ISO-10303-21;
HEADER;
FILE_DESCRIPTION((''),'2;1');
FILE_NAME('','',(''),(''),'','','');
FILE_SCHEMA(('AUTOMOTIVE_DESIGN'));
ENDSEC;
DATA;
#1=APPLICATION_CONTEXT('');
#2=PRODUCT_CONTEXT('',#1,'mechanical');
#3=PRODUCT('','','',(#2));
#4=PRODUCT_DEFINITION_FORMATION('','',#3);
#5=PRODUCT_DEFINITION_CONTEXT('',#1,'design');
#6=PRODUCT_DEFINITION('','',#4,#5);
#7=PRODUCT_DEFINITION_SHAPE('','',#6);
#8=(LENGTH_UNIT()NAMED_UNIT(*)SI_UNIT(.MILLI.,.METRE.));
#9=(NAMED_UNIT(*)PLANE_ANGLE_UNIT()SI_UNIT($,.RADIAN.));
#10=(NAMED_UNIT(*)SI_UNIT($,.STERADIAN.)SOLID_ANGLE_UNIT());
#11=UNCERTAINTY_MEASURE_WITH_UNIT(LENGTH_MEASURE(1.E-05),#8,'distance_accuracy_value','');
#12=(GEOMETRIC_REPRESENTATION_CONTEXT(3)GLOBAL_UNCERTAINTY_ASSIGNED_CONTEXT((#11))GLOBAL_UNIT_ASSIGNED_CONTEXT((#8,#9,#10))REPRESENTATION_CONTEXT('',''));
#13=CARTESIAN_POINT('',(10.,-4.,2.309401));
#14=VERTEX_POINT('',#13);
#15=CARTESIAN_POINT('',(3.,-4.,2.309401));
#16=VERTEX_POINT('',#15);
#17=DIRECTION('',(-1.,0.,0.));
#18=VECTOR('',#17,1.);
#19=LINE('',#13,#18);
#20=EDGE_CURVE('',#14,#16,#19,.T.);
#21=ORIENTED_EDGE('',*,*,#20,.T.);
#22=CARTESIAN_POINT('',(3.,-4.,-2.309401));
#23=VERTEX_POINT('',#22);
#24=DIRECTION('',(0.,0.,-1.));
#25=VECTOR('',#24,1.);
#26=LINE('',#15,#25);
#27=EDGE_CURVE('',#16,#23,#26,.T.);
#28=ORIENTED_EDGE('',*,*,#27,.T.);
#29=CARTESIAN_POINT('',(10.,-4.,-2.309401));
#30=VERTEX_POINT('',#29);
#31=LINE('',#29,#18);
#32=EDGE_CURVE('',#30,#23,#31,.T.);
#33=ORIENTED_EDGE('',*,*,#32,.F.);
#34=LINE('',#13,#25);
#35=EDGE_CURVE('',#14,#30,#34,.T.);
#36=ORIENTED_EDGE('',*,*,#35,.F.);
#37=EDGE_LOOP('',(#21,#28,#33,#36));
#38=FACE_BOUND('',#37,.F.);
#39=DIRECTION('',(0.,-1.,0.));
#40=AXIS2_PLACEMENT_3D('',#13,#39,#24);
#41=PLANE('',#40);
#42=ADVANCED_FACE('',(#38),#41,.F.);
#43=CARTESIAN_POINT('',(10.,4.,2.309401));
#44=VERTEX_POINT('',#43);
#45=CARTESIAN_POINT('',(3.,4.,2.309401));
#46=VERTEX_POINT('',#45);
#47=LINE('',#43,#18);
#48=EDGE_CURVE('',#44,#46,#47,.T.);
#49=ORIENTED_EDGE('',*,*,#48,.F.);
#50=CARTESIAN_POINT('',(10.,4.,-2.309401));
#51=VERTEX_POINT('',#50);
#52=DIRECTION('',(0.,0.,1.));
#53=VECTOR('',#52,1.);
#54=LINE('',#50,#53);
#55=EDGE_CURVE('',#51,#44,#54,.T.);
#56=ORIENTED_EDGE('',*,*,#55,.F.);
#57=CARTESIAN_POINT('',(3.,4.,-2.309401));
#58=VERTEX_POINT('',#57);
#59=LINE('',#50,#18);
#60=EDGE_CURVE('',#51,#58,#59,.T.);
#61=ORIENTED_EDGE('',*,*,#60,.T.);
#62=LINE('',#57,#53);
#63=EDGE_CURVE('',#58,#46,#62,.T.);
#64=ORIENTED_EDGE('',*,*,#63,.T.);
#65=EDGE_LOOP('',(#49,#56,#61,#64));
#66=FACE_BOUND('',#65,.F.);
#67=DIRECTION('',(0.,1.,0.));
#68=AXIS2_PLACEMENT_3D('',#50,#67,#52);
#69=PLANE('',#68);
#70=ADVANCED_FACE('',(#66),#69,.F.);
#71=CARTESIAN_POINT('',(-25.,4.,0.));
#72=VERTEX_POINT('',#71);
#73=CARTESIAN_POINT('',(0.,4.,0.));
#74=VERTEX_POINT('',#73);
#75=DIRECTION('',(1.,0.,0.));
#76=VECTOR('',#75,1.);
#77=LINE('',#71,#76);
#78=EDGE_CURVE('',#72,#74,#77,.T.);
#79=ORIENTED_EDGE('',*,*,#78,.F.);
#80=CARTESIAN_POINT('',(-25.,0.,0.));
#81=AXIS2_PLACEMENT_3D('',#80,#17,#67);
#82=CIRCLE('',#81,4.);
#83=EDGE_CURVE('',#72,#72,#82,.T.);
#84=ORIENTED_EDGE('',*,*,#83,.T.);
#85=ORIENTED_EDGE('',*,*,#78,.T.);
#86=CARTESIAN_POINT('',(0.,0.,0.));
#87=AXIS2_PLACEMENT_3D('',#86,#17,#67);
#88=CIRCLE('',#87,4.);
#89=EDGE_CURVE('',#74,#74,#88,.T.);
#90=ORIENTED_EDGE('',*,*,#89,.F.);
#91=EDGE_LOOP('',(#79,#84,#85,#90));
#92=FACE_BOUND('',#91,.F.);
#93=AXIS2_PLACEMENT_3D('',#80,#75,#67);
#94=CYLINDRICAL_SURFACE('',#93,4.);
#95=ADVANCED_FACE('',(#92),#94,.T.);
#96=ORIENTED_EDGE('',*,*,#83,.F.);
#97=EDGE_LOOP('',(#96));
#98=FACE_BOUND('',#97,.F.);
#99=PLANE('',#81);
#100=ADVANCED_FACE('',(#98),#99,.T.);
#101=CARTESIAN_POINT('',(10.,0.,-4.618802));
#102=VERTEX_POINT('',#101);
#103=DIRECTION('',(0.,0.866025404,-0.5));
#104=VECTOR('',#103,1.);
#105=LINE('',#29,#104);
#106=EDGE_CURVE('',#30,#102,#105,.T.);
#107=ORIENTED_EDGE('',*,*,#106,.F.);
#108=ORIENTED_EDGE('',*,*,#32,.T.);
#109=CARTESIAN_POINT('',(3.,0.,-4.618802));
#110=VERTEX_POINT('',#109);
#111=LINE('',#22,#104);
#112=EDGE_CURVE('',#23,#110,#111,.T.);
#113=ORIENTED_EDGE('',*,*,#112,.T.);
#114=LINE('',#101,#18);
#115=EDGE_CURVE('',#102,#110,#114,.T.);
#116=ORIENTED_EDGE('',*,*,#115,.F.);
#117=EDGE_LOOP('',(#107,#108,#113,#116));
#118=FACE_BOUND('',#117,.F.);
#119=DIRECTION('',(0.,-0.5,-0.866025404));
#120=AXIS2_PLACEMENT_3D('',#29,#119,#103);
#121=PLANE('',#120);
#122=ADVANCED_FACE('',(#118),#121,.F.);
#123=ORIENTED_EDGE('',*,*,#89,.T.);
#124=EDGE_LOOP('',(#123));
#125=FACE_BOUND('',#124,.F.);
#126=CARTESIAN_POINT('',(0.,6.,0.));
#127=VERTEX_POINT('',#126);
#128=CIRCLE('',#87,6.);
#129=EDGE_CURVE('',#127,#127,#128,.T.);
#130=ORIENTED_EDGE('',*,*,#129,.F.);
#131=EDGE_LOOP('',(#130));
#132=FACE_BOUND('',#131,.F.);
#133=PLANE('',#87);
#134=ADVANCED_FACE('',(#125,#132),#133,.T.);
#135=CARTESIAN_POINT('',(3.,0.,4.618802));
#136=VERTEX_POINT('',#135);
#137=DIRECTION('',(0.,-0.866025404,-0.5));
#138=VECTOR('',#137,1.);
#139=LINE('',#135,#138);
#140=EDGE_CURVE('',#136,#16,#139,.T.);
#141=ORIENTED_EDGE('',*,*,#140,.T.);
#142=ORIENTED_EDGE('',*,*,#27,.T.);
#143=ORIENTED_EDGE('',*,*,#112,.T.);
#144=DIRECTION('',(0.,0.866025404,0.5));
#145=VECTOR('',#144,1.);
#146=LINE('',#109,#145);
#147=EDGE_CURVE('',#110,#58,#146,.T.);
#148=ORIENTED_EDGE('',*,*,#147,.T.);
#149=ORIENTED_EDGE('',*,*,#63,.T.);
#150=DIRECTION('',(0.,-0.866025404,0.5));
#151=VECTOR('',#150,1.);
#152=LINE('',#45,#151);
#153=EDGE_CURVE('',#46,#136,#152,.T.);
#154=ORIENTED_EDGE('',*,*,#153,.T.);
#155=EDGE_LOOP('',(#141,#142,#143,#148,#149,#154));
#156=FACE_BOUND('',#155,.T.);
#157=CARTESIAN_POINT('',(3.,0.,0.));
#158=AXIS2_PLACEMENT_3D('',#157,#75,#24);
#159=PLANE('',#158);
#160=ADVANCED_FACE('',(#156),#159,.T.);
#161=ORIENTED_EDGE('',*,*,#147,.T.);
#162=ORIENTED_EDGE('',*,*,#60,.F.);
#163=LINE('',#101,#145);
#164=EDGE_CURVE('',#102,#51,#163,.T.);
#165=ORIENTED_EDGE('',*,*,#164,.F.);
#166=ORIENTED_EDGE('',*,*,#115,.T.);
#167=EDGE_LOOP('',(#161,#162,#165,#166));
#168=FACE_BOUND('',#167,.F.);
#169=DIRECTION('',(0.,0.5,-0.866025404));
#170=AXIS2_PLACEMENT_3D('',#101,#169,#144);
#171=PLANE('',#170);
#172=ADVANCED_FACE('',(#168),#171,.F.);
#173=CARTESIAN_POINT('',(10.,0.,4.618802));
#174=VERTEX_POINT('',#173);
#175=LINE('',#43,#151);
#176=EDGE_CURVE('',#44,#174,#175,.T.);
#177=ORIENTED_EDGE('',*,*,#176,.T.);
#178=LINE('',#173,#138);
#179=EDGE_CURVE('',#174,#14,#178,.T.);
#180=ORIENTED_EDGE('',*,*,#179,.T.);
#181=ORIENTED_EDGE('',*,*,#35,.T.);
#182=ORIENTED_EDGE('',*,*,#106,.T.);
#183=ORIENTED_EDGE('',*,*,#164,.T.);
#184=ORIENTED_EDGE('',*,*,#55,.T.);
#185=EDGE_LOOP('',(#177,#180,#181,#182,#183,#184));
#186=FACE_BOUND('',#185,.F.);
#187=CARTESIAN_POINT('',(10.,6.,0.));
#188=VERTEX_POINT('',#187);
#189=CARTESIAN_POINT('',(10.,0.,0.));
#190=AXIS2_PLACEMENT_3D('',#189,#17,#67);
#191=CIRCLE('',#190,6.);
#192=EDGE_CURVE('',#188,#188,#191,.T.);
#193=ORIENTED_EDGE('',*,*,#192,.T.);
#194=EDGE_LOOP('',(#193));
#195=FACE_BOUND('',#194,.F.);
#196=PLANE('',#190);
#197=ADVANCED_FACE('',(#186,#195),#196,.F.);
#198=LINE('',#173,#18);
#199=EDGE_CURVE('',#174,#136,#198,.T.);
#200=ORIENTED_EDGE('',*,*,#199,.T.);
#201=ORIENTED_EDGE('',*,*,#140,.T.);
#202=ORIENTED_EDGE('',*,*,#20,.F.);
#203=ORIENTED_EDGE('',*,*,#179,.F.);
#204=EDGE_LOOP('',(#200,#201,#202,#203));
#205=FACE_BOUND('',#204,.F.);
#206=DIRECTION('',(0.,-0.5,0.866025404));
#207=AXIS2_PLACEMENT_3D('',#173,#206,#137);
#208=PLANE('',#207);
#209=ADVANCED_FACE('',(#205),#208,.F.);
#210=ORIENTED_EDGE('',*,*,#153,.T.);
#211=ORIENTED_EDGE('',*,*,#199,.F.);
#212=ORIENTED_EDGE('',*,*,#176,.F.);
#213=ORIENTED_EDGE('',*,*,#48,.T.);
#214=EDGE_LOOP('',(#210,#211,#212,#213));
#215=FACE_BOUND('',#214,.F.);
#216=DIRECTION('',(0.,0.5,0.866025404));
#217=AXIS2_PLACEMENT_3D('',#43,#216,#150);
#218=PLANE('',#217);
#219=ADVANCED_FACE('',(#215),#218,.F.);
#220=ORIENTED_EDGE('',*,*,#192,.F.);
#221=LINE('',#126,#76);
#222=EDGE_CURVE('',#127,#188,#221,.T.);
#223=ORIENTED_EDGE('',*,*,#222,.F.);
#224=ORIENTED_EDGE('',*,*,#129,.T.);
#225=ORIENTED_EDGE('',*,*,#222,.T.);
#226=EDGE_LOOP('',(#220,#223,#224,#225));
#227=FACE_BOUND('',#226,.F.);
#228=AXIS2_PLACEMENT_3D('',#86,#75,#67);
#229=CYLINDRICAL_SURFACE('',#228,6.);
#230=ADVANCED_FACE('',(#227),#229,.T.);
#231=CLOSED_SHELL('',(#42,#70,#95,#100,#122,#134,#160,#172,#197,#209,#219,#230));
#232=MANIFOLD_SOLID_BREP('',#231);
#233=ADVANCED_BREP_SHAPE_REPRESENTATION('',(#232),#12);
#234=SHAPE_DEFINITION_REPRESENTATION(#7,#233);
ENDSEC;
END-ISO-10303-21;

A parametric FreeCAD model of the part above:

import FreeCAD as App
import Part
import Sketcher
from FreeCAD import Vector
Q = App.Units.Quantity

doc = App.newDocument("Part")
params = doc.addObject("Spreadsheet::Sheet", "Params")
for row, (alias, value) in enumerate([
    ("sketch1_width", "35 mm"),
    ("sketch1_width2", "10 mm"),
    ("sketch1_height", "6 mm"),
    ("sketch1_height2", "2 mm"),
    ("revolution_angle", "360 deg"),
    ("pocket1_length", "7 mm"),
], start=1):
    params.set(f"A{row}", alias)
    params.set(f"B{row}", "=" + value)
    params.setAlias(f"B{row}", alias)

body = doc.addObject("PartDesign::Body", "Body")

# Sketch on XY plane
sketch1 = body.newObject("Sketcher::SketchObject", "Sketch")
sketch1.AttachmentSupport = (doc.getObject("XY_Plane"), [""])
sketch1.MapMode = "FlatFace"
sketch1.addGeometry([
    Part.LineSegment(Vector(-25, 0, 0), Vector(10, 0, 0)),  # 0
    Part.LineSegment(Vector(10, 0, 0), Vector(10, 6, 0)),  # 1
    Part.LineSegment(Vector(10, 6, 0), Vector(0, 6, 0)),  # 2
    Part.LineSegment(Vector(0, 6, 0), Vector(0, 4, 0)),  # 3
    Part.LineSegment(Vector(0, 4, 0), Vector(-25, 4, 0)),  # 4
    Part.LineSegment(Vector(-25, 4, 0), Vector(-25, 0, 0)),  # 5
], False)
sketch1.addConstraint([
    Sketcher.Constraint("Coincident", 0, 2, 1, 1),
    Sketcher.Constraint("Coincident", 1, 2, 2, 1),
    Sketcher.Constraint("Coincident", 2, 2, 3, 1),
    Sketcher.Constraint("Coincident", 3, 2, 4, 1),
    Sketcher.Constraint("Coincident", 4, 2, 5, 1),
    Sketcher.Constraint("Coincident", 5, 2, 0, 1),
    Sketcher.Constraint("Horizontal", 0),
    Sketcher.Constraint("Vertical", 1),
    Sketcher.Constraint("Horizontal", 2),
    Sketcher.Constraint("Vertical", 3),
    Sketcher.Constraint("Horizontal", 4),
    Sketcher.Constraint("Vertical", 5),
    Sketcher.Constraint("PointOnObject", 0, 2, -1),
    Sketcher.Constraint("PointOnObject", 2, 2, -2),
    Sketcher.Constraint("DistanceX", 0, 1, 0, 2, 35.0),
    Sketcher.Constraint("DistanceX", 2, 2, 2, 1, 10.0),
    Sketcher.Constraint("DistanceY", 1, 1, 1, 2, 6.0),
    Sketcher.Constraint("DistanceY", 3, 2, 3, 1, 2.0),
])
sketch1.setExpression("Constraints[14]", "Params.sketch1_width")
sketch1.setExpression("Constraints[15]", "Params.sketch1_width2")
sketch1.setExpression("Constraints[16]", "Params.sketch1_height")
sketch1.setExpression("Constraints[17]", "Params.sketch1_height2")
revolution = body.newObject("PartDesign::Revolution", "Revolution")
revolution.Profile = sketch1
revolution.ReferenceAxis = (sketch1, ["H_Axis"])
revolution.setExpression("Angle", "Params.revolution_angle")

# Sketch on YZ plane
sketch2 = body.newObject("Sketcher::SketchObject", "Sketch001")
sketch2.AttachmentSupport = (doc.getObject("YZ_Plane"), [""])
sketch2.MapMode = "FlatFace"
sketch2.AttachmentOffset = App.Placement(Vector(0, 0, 10), App.Rotation())
sketch2.addGeometry([
    Part.LineSegment(Vector(0, -4.618802, 0), Vector(4, -2.309401, 0)),  # 0
    Part.LineSegment(Vector(4, -2.309401, 0), Vector(4, 2.309401, 0)),  # 1
    Part.LineSegment(Vector(4, 2.309401, 0), Vector(0, 4.618802, 0)),  # 2
    Part.LineSegment(Vector(0, 4.618802, 0), Vector(-4, 2.309401, 0)),  # 3
    Part.LineSegment(Vector(-4, 2.309401, 0), Vector(-4, -2.309401, 0)),  # 4
    Part.LineSegment(Vector(-4, -2.309401, 0), Vector(0, -4.618802, 0)),  # 5
], False)
sketch2.addConstraint([
    Sketcher.Constraint("Coincident", 0, 2, 1, 1),
    Sketcher.Constraint("Coincident", 1, 2, 2, 1),
    Sketcher.Constraint("Coincident", 2, 2, 3, 1),
    Sketcher.Constraint("Coincident", 3, 2, 4, 1),
    Sketcher.Constraint("Coincident", 4, 2, 5, 1),
    Sketcher.Constraint("Coincident", 5, 2, 0, 1),
    Sketcher.Constraint("Vertical", 1),
    Sketcher.Constraint("Vertical", 4),
    Sketcher.Constraint("Symmetric", 0, 2, 3, 2, -1, 1),
    Sketcher.Constraint("Symmetric", 2, 2, 5, 2, -1, 1),
    Sketcher.Constraint("PointOnObject", 2, 2, -2),
    Sketcher.Constraint("Parallel", 2, 5),
    Sketcher.Constraint("Horizontal", 1, 2, 3, 2),
    Sketcher.Constraint("Angle", 0, Q("30 deg")),
    Sketcher.Constraint("DistanceX", -1, 1, 0, 2, 4.0),
    Sketcher.Constraint("DistanceY", 0, 2, -1, 1, 2.309401),
])
pocket1 = body.newObject("PartDesign::Pocket", "Pocket")
pocket1.Profile = sketch2
pocket1.setExpression("Length", "Params.pocket1_length")

doc.recompute()
